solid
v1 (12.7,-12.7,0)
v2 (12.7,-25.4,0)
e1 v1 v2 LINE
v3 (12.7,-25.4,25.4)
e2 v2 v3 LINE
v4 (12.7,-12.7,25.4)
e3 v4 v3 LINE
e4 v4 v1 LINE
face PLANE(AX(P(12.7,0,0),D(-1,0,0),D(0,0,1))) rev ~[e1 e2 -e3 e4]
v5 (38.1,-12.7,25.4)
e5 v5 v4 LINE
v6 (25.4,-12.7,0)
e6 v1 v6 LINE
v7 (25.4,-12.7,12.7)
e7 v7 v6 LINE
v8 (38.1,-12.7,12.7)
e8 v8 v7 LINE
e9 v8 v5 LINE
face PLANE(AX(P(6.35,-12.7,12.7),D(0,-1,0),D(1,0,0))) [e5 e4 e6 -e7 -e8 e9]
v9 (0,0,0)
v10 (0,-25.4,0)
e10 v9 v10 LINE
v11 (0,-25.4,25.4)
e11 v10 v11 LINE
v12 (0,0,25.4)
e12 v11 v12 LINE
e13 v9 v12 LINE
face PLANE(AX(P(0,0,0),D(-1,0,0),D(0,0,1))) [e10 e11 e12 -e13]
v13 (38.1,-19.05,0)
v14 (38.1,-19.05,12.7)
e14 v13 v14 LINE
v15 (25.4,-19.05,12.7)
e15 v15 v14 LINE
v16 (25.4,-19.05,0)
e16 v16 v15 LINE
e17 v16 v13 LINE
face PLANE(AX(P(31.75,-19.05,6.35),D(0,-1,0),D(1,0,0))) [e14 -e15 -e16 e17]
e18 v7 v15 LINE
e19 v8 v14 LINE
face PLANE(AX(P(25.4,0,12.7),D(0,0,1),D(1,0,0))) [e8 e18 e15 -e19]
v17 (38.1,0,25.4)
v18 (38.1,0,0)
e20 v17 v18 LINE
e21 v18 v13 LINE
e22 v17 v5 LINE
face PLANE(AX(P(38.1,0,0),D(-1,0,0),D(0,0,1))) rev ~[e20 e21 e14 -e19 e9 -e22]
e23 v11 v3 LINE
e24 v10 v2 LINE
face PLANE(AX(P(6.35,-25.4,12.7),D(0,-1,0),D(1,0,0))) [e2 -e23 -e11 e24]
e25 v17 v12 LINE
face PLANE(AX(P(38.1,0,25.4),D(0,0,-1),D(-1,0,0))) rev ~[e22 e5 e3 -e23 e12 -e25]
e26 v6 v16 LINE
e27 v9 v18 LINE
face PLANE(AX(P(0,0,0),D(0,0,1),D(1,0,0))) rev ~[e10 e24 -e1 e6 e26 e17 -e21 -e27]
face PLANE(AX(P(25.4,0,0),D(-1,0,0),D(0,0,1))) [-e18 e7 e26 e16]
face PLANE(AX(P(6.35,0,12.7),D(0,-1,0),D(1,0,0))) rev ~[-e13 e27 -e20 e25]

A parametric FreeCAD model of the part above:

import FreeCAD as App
import Part
import Sketcher
from FreeCAD import Vector
Q = App.Units.Quantity


def add_polygon(sketch, points):
    """Adds a closed chain of lines whose ends are joined by coincident constraints."""
    first, n = sketch.GeometryCount, len(points)
    for a, b in zip(points, points[1:] + points[:1]):
        sketch.addGeometry(Part.LineSegment(App.Vector(*a, 0), App.Vector(*b, 0)), False)
    for i in range(n):
        sketch.addConstraint(Sketcher.Constraint("Coincident", first + i, 2, first + (i + 1) % n, 1))

doc = App.newDocument("Part")
params = doc.addObject("Spreadsheet::Sheet", "Params")
for row, (alias, value) in enumerate([
    ("sketch1_height", "1 in"),
    ("sketch1_width", "1.5 in"),
    ("pad1_length", "0.5 in"),
    ("sketch2_height", "1 in"),
    ("sketch2_width", "0.5 in"),
    ("pad2_length", "1 in"),
    ("sketch3_width", "0.5 in"),
    ("pad3_length", "0.75 in"),
], start=1):
    params.set(f"A{row}", alias)
    params.set(f"B{row}", "=" + value)
    params.setAlias(f"B{row}", alias)

body = doc.addObject("PartDesign::Body", "Body")

# Sketch on XZ plane
sketch1 = body.newObject("Sketcher::SketchObject", "Sketch")
sketch1.AttachmentSupport = (doc.getObject("XZ_Plane"), [""])
sketch1.MapMode = "FlatFace"
add_polygon(sketch1, [(0, 25.4), (0, 0), (38.1, 0), (38.1, 25.4)])  # lines 0-3
sketch1.addConstraint([
    Sketcher.Constraint("Vertical", 0),
    Sketcher.Constraint("Horizontal", 1),
    Sketcher.Constraint("Vertical", 2),
    Sketcher.Constraint("Horizontal", 3),
    Sketcher.Constraint("Coincident", 0, 2, -1, 1),
    Sketcher.Constraint("DistanceY", 0, 2, 0, 1, Q("1 in")),
    Sketcher.Constraint("DistanceX", 1, 1, 1, 2, Q("1.5 in")),
])
sketch1.setExpression("Constraints[9]", "Params.sketch1_height")
sketch1.setExpression("Constraints[10]", "Params.sketch1_width")
pad1 = body.newObject("PartDesign::Pad", "Pad")
pad1.Profile = sketch1
pad1.setExpression("Length", "Params.pad1_length")

# Sketch on XZ plane
sketch2 = body.newObject("Sketcher::SketchObject", "Sketch001")
sketch2.AttachmentSupport = (doc.getObject("XZ_Plane"), [""])
sketch2.MapMode = "FlatFace"
add_polygon(sketch2, [(0, 25.4), (0, 0), (12.7, 0), (12.7, 25.4)])  # lines 0-3
sketch2.addConstraint([
    Sketcher.Constraint("Vertical", 0),
    Sketcher.Constraint("Horizontal", 1),
    Sketcher.Constraint("Vertical", 2),
    Sketcher.Constraint("Horizontal", 3),
    Sketcher.Constraint("Coincident", 0, 2, -1, 1),
    Sketcher.Constraint("DistanceY", 0, 2, 0, 1, Q("1 in")),
    Sketcher.Constraint("DistanceX", 1, 1, 1, 2, Q("0.5 in")),
])
sketch2.setExpression("Constraints[9]", "Params.sketch2_height")
sketch2.setExpression("Constraints[10]", "Params.sketch2_width")
pad2 = body.newObject("PartDesign::Pad", "Pad001")
pad2.Profile = sketch2
pad2.setExpression("Length", "Params.pad2_length")

# Sketch on XZ plane
sketch3 = body.newObject("Sketcher::SketchObject", "Sketch002")
sketch3.AttachmentSupport = (doc.getObject("XZ_Plane"), [""])
sketch3.MapMode = "FlatFace"
add_polygon(sketch3, [(25.4, 12.7), (25.4, 0), (38.1, 0), (38.1, 12.7)])  # lines 0-3
sketch3.addConstraint([
    Sketcher.Constraint("Vertical", 0),
    Sketcher.Constraint("Horizontal", 1),
    Sketcher.Constraint("Vertical", 2),
    Sketcher.Constraint("Horizontal", 3),
    Sketcher.Constraint("PointOnObject", 0, 2, -1),
    Sketcher.Constraint("Equal", 3, 0),
    Sketcher.Constraint("DistanceX", 1, 1, 1, 2, Q("0.5 in")),
    Sketcher.Constraint("DistanceX", -1, 1, 0, 2, Q("1 in")),
])
sketch3.setExpression("Constraints[10]", "Params.sketch3_width")
pad3 = body.newObject("PartDesign::Pad", "Pad002")
pad3.Profile = sketch3
pad3.setExpression("Length", "Params.pad3_length")

doc.recompute()
